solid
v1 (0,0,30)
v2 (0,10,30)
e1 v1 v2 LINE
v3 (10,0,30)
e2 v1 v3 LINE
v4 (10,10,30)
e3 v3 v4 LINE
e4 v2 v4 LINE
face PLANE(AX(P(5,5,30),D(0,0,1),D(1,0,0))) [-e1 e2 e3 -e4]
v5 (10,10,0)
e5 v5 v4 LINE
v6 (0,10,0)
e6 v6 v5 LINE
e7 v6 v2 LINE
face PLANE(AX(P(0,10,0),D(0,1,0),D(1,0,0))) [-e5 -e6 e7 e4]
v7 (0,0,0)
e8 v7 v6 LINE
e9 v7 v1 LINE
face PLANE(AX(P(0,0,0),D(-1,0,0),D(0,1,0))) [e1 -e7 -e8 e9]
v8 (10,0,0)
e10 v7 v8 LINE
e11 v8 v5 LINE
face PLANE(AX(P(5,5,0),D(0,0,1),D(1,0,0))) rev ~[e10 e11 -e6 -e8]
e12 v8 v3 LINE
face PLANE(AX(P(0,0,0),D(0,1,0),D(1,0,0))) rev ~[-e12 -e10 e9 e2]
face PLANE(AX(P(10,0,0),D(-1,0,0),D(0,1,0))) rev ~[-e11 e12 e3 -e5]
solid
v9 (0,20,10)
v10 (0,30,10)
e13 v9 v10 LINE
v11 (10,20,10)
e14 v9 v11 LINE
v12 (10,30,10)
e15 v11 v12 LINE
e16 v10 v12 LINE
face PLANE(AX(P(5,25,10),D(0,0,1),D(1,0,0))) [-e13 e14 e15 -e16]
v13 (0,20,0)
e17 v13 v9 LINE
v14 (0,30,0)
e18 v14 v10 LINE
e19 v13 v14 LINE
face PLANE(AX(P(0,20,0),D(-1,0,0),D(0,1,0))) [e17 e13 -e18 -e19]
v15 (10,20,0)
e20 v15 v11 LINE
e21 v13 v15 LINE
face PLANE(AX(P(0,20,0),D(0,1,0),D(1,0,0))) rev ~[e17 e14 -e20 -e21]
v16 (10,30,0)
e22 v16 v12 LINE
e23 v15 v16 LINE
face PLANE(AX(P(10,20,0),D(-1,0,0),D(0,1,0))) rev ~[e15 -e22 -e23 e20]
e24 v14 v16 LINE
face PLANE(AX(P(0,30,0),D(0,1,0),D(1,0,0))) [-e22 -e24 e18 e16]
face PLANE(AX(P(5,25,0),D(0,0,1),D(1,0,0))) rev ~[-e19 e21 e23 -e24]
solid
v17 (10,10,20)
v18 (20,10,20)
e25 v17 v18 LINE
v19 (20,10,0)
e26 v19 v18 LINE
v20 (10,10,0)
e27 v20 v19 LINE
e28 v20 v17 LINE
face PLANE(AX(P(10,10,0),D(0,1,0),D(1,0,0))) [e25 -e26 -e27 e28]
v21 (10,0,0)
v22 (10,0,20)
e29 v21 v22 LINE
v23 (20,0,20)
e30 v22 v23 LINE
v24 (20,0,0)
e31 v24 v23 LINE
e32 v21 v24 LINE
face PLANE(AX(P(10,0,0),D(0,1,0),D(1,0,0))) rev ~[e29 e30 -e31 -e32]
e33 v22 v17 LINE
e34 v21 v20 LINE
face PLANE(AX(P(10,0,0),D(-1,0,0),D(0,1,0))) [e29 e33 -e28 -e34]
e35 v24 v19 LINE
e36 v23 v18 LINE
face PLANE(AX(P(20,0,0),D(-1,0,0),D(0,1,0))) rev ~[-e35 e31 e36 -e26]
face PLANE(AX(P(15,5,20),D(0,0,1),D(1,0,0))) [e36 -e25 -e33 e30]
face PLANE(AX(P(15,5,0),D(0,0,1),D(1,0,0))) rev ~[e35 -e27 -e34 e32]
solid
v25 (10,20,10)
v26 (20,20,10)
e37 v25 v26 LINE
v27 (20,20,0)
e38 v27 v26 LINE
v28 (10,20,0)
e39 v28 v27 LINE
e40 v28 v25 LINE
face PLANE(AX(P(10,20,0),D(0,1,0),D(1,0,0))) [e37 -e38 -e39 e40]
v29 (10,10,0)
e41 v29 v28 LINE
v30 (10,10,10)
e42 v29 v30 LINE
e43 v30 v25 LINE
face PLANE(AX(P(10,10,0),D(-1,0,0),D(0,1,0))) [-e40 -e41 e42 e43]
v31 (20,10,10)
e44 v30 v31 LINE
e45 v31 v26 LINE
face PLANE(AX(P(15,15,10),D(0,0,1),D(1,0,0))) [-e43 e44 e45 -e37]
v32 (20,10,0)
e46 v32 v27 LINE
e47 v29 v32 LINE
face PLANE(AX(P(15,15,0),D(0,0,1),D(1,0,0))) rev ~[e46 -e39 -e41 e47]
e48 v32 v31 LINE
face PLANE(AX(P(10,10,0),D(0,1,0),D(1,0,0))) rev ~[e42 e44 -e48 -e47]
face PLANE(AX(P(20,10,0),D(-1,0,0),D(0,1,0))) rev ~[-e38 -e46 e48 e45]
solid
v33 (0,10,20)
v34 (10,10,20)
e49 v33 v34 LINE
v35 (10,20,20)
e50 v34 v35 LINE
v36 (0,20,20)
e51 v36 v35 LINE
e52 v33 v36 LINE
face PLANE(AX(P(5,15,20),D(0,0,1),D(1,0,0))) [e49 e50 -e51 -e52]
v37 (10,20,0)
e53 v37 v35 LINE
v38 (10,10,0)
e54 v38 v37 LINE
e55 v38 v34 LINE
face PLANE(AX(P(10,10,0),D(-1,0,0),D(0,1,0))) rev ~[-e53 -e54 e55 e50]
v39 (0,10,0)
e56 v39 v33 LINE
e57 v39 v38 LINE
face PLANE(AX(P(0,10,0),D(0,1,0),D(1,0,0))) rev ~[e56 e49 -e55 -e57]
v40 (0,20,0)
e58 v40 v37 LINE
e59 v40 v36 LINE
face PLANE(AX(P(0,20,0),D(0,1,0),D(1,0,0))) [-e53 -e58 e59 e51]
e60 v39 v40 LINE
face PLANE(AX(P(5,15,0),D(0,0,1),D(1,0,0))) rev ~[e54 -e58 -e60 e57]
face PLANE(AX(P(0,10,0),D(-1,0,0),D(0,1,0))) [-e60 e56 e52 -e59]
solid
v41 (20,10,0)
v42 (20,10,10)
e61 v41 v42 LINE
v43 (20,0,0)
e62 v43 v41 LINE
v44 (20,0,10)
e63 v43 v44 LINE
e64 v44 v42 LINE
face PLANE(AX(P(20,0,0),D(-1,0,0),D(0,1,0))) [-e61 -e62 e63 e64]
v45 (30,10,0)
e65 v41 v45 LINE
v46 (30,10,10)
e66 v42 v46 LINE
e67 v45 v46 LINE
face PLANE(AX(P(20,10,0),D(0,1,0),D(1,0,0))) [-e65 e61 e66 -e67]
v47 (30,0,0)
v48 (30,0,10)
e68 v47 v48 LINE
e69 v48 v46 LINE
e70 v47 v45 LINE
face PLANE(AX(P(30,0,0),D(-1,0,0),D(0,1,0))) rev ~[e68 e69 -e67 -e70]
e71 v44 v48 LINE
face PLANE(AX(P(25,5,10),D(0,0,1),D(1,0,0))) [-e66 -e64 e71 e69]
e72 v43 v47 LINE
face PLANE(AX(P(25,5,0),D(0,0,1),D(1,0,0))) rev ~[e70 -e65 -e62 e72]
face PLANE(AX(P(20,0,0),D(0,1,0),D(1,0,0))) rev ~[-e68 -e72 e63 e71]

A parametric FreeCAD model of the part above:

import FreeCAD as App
import Part
import Sketcher

V = App.Vector
Q = App.Units.Quantity


def add_polygon(sketch, points):
    """Adds a closed chain of lines whose ends are joined by coincident constraints."""
    first, n = sketch.GeometryCount, len(points)
    for a, b in zip(points, points[1:] + points[:1]):
        sketch.addGeometry(Part.LineSegment(App.Vector(*a, 0), App.Vector(*b, 0)), False)
    for i in range(n):
        sketch.addConstraint(Sketcher.Constraint("Coincident", first + i, 2, first + (i + 1) % n, 1))

doc = App.newDocument("Part")
body = doc.addObject("PartDesign::Body", "Body")

sketch1 = body.newObject("Sketcher::SketchObject", "Sketch")
sketch1.AttachmentSupport = (doc.getObject("XY_Plane"), [""])
sketch1.MapMode = "FlatFace"
add_polygon(sketch1, [(0, 10), (0, 0), (10, 0), (10, 10)])
sketch1.addConstraint(Sketcher.Constraint("Vertical", 0))
sketch1.addConstraint(Sketcher.Constraint("Horizontal", 1))
sketch1.addConstraint(Sketcher.Constraint("Vertical", 2))
sketch1.addConstraint(Sketcher.Constraint("Horizontal", 3))
sketch1.addConstraint(Sketcher.Constraint("Coincident", 0, 2, -1, 1))
sketch1.addConstraint(Sketcher.Constraint("Equal", 3, 0))
sketch1.addConstraint(Sketcher.Constraint("DistanceX", 1, 1, 1, 2, Q("10 mm")))
pad1 = body.newObject("PartDesign::Pad", "Pad")
pad1.Profile = sketch1
pad1.Length = 30
body2 = doc.addObject("PartDesign::Body", "Body001")

sketch2 = body2.newObject("Sketcher::SketchObject", "Sketch001")
sketch2.AttachmentSupport = (doc.getObject("XY_Plane001"), [""])
sketch2.MapMode = "FlatFace"
add_polygon(sketch2, [(10, 10), (10, 0), (20, 0), (20, 10)])
sketch2.addConstraint(Sketcher.Constraint("Vertical", 0))
sketch2.addConstraint(Sketcher.Constraint("Horizontal", 1))
sketch2.addConstraint(Sketcher.Constraint("Vertical", 2))
sketch2.addConstraint(Sketcher.Constraint("Horizontal", 3))
sketch2.addConstraint(Sketcher.Constraint("PointOnObject", 0, 2, -1))
sketch2.addConstraint(Sketcher.Constraint("Equal", 3, 0))
sketch2.addConstraint(Sketcher.Constraint("DistanceX", 1, 1, 1, 2, Q("10 mm")))
sketch2.addConstraint(Sketcher.Constraint("DistanceX", -1, 1, 0, 2, Q("10 mm")))
pad2 = body2.newObject("PartDesign::Pad", "Pad001")
pad2.Profile = sketch2
pad2.Length = 20
body3 = doc.addObject("PartDesign::Body", "Body002")

sketch3 = body3.newObject("Sketcher::SketchObject", "Sketch002")
sketch3.AttachmentSupport = (doc.getObject("XY_Plane002"), [""])
sketch3.MapMode = "FlatFace"
add_polygon(sketch3, [(0, 20), (0, 10), (10, 10), (10, 20)])
sketch3.addConstraint(Sketcher.Constraint("Vertical", 0))
sketch3.addConstraint(Sketcher.Constraint("Horizontal", 1))
sketch3.addConstraint(Sketcher.Constraint("Vertical", 2))
sketch3.addConstraint(Sketcher.Constraint("Horizontal", 3))
sketch3.addConstraint(Sketcher.Constraint("PointOnObject", 0, 2, -2))
sketch3.addConstraint(Sketcher.Constraint("Equal", 3, 0))
sketch3.addConstraint(Sketcher.Constraint("DistanceX", 1, 1, 1, 2, Q("10 mm")))
sketch3.addConstraint(Sketcher.Constraint("DistanceY", -1, 1, 0, 2, Q("10 mm")))
pad3 = body3.newObject("PartDesign::Pad", "Pad002")
pad3.Profile = sketch3
pad3.Length = 20
body4 = doc.addObject("PartDesign::Body", "Body003")

sketch4 = body4.newObject("Sketcher::SketchObject", "Sketch003")
sketch4.AttachmentSupport = (doc.getObject("XY_Plane003"), [""])
sketch4.MapMode = "FlatFace"
add_polygon(sketch4, [(20, 10), (20, 0), (30, 0), (30, 10)])
sketch4.addConstraint(Sketcher.Constraint("Vertical", 0))
sketch4.addConstraint(Sketcher.Constraint("Horizontal", 1))
sketch4.addConstraint(Sketcher.Constraint("Vertical", 2))
sketch4.addConstraint(Sketcher.Constraint("Horizontal", 3))
sketch4.addConstraint(Sketcher.Constraint("PointOnObject", 0, 2, -1))
sketch4.addConstraint(Sketcher.Constraint("Equal", 3, 0))
sketch4.addConstraint(Sketcher.Constraint("DistanceX", 1, 1, 1, 2, Q("10 mm")))
sketch4.addConstraint(Sketcher.Constraint("DistanceX", -1, 1, 0, 2, Q("20 mm")))
pad4 = body4.newObject("PartDesign::Pad", "Pad003")
pad4.Profile = sketch4
pad4.Length = 10
body5 = doc.addObject("PartDesign::Body", "Body004")

sketch5 = body5.newObject("Sketcher::SketchObject", "Sketch004")
sketch5.AttachmentSupport = (doc.getObject("XY_Plane004"), [""])
sketch5.MapMode = "FlatFace"
add_polygon(sketch5, [(0, 30), (0, 20), (10, 20), (10, 30)])
sketch5.addConstraint(Sketcher.Constraint("Vertical", 0))
sketch5.addConstraint(Sketcher.Constraint("Horizontal", 1))
sketch5.addConstraint(Sketcher.Constraint("Vertical", 2))
sketch5.addConstraint(Sketcher.Constraint("Horizontal", 3))
sketch5.addConstraint(Sketcher.Constraint("PointOnObject", 0, 2, -2))
sketch5.addConstraint(Sketcher.Constraint("Equal", 3, 0))
sketch5.addConstraint(Sketcher.Constraint("DistanceX", 1, 1, 1, 2, Q("10 mm")))
sketch5.addConstraint(Sketcher.Constraint("DistanceY", -1, 1, 0, 2, Q("20 mm")))
pad5 = body5.newObject("PartDesign::Pad", "Pad004")
pad5.Profile = sketch5
pad5.Length = 10
body6 = doc.addObject("PartDesign::Body", "Body005")

sketch6 = body6.newObject("Sketcher::SketchObject", "Sketch005")
sketch6.AttachmentSupport = (doc.getObject("XY_Plane005"), [""])
sketch6.MapMode = "FlatFace"
add_polygon(sketch6, [(10, 20), (10, 10), (20, 10), (20, 20)])
sketch6.addConstraint(Sketcher.Constraint("Vertical", 0))
sketch6.addConstraint(Sketcher.Constraint("Horizontal", 1))
sketch6.addConstraint(Sketcher.Constraint("Vertical", 2))
sketch6.addConstraint(Sketcher.Constraint("Horizontal", 3))
sketch6.addConstraint(Sketcher.Constraint("Equal", 3, 0))
sketch6.addConstraint(Sketcher.Constraint("DistanceX", 1, 1, 1, 2, Q("10 mm")))
sketch6.addConstraint(Sketcher.Constraint("DistanceX", -1, 1, 0, 2, Q("10 mm")))
sketch6.addConstraint(Sketcher.Constraint("DistanceY", -1, 1, 0, 2, Q("10 mm")))
pad6 = body6.newObject("PartDesign::Pad", "Pad005")
pad6.Profile = sketch6
pad6.Length = 10

doc.recompute()
